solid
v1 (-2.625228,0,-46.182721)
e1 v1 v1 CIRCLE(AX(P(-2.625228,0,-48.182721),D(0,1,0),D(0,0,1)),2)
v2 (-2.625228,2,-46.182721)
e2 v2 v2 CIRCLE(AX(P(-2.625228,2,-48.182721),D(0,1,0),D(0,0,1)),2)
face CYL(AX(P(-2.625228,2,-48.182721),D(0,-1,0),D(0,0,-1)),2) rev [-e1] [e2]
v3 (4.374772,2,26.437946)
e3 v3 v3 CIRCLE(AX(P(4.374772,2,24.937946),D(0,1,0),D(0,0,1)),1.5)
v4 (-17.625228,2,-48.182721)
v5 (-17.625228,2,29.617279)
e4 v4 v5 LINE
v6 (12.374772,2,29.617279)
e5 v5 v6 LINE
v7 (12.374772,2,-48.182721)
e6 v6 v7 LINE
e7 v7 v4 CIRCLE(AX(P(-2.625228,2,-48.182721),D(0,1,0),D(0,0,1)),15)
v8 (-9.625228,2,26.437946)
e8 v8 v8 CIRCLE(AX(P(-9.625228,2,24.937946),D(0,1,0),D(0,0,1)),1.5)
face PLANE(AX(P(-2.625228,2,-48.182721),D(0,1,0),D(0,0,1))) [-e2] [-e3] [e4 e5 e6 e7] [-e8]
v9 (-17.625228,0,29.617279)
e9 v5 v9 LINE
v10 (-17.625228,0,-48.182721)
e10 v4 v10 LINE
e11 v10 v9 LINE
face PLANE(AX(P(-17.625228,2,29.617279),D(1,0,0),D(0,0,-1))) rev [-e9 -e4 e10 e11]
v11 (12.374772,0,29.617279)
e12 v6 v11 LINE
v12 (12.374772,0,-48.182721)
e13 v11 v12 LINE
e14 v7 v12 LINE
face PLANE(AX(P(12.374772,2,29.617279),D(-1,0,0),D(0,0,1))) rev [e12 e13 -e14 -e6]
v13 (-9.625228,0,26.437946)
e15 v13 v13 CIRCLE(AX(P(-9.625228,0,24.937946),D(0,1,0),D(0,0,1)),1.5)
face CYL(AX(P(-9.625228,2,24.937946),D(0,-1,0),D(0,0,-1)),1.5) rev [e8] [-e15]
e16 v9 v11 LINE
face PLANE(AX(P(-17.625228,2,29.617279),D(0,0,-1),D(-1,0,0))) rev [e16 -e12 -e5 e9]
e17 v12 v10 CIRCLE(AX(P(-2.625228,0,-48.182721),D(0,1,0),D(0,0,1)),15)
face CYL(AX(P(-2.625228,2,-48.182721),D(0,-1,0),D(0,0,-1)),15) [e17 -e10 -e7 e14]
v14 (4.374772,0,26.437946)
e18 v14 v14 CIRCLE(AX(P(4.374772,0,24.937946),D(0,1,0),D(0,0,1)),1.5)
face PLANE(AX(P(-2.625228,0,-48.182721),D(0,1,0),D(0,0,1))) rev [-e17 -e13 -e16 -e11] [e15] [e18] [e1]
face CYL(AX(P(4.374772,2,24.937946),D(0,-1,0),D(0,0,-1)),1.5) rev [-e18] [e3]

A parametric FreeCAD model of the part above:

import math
import FreeCAD as App
import Part
import Sketcher
from FreeCAD import Vector

doc = App.newDocument("Part")
body = doc.addObject("PartDesign::Body", "Body")

# Sketch on XZ plane
sketch1 = body.newObject("Sketcher::SketchObject", "Sketch")
sketch1.AttachmentSupport = (doc.getObject("XZ_Plane"), [""])
sketch1.MapMode = "FlatFace"
sketch1.addGeometry([
    Part.LineSegment(Vector(-17.625228, 29.617279, 0), Vector(12.374772, 29.617279, 0)),  # 0
    Part.LineSegment(Vector(12.374772, 29.617279, 0), Vector(12.374772, -48.182721, 0)),  # 1
    Part.ArcOfCircle(Part.Circle(Vector(-2.625228, -48.182721, 0), Vector(0, 0, 1), 15), math.radians(180), math.radians(360)),  # 2
    Part.LineSegment(Vector(-17.625228, -48.182721, 0), Vector(-17.625228, 29.617279, 0)),  # 3
    Part.Circle(Vector(-9.625228, 24.937946, 0), Vector(0, 0, 1), 1.5),  # 4
    Part.Circle(Vector(4.374772, 24.937946, 0), Vector(0, 0, 1), 1.5),  # 5
    Part.Circle(Vector(-2.625228, -48.182721, 0), Vector(0, 0, 1), 2),  # 6
], False)
sketch1.addConstraint([
    Sketcher.Constraint("Coincident", 0, 2, 1, 1),
    Sketcher.Constraint("Tangent", 1, 2, 2, 2),
    Sketcher.Constraint("Tangent", 2, 1, 3, 1),
    Sketcher.Constraint("Coincident", 3, 2, 0, 1),
    Sketcher.Constraint("Horizontal", 0),
    Sketcher.Constraint("Vertical", 1),
    Sketcher.Constraint("Vertical", 3),
    Sketcher.Constraint("Coincident", 6, 3, 2, 3),
    Sketcher.Constraint("Equal", 4, 5),
    Sketcher.Constraint("Horizontal", 4, 3, 5, 3),
    Sketcher.Constraint("Diameter", 4, 3.0),
    Sketcher.Constraint("Diameter", 6, 4.0),
    Sketcher.Constraint("Radius", 2, 15.0),
    Sketcher.Constraint("DistanceY", 1, 2, 1, 1, 77.8),
    Sketcher.Constraint("DistanceX", 4, 3, 2, 3, 7.0),
    Sketcher.Constraint("DistanceX", 4, 3, 5, 3, 14.0),
    Sketcher.Constraint("DistanceY", 2, 3, -1, 1, 48.182721),
    Sketcher.Constraint("DistanceX", 2, 3, -1, 1, 2.625228),
    Sketcher.Constraint("DistanceY", -1, 1, 4, 3, 24.937946),
])
pad1 = body.newObject("PartDesign::Pad", "Pad")
pad1.Profile = sketch1
pad1.Length = 2
pad1.Reversed = True

doc.recompute()
